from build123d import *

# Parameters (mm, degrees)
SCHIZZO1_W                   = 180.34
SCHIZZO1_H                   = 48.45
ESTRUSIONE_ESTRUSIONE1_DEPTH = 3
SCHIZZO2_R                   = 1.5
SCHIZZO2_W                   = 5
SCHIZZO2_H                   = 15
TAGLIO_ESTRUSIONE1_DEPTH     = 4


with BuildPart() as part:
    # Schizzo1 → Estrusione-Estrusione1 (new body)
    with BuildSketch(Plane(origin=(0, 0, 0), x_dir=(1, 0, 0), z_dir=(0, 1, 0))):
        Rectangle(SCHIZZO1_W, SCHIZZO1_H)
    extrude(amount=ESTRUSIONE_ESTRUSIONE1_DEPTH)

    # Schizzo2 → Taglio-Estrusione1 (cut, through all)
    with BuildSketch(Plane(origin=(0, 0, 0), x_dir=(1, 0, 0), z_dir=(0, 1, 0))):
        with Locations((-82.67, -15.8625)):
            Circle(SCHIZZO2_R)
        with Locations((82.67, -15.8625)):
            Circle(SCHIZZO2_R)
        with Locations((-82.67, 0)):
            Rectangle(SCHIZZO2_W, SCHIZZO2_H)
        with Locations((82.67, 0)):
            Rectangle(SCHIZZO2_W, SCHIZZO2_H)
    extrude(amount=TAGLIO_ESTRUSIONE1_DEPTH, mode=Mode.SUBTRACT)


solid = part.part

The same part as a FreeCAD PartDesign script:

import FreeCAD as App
import Part
import Sketcher

doc = App.newDocument("Part")
body = doc.addObject("PartDesign::Body", "Body")

sketch1 = doc.addObject("Sketcher::SketchObject", "Sketch")
body.addObject(sketch1)
sketch1.AttachmentSupport = (doc.XZ_Plane, [""])
sketch1.MapMode = "FlatFace"
sketch1.addGeometry([
    Part.LineSegment(App.Vector(-90, -24, 0), App.Vector(-90, 24, 0)),
    Part.LineSegment(App.Vector(-90, 24, 0), App.Vector(90, 24, 0)),
    Part.LineSegment(App.Vector(90, 24, 0), App.Vector(90, -24, 0)),
    Part.LineSegment(App.Vector(90, -24, 0), App.Vector(-90, -24, 0)),
], False)
sketch1.addConstraint([
    Sketcher.Constraint("Coincident", 0, 2, 1, 1),
    Sketcher.Constraint("Coincident", 1, 2, 2, 1),
    Sketcher.Constraint("Coincident", 2, 2, 3, 1),
    Sketcher.Constraint("Coincident", 3, 2, 0, 1),
    Sketcher.Constraint("Vertical", 0),
    Sketcher.Constraint("Horizontal", 1),
    Sketcher.Constraint("Vertical", 2),
    Sketcher.Constraint("Horizontal", 3),
    Sketcher.Constraint("Symmetric", 0, 2, 2, 2, -1, 1),
    Sketcher.Constraint("DistanceX", 1, 1, 1, 2, 180.34),
    Sketcher.Constraint("DistanceY", 0, 1, 0, 2, 48.45),
])
pad1 = doc.addObject("PartDesign::Pad", "Pad")
body.addObject(pad1)
pad1.Profile = sketch1
pad1.Length = 3
pad1.Reversed = True

sketch2 = doc.addObject("Sketcher::SketchObject", "Sketch001")
body.addObject(sketch2)
sketch2.AttachmentSupport = (doc.XZ_Plane, [""])
sketch2.MapMode = "FlatFace"
sketch2.addGeometry([
    Part.Circle(App.Vector(-82.7, 15.9, 0), App.Vector(0, 0, 1), 1.5),
    Part.Circle(App.Vector(82.7, 15.9, 0), App.Vector(0, 0, 1), 1.5),
    Part.LineSegment(App.Vector(-85.2, -7.5, 0), App.Vector(-85.2, 7.5, 0)),
    Part.LineSegment(App.Vector(-85.2, 7.5, 0), App.Vector(-80.2, 7.5, 0)),
    Part.LineSegment(App.Vector(-80.2, 7.5, 0), App.Vector(-80.2, -7.5, 0)),
    Part.LineSegment(App.Vector(-80.2, -7.5, 0), App.Vector(-85.2, -7.5, 0)),
    Part.LineSegment(App.Vector(80.2, -7.5, 0), App.Vector(80.2, 7.5, 0)),
    Part.LineSegment(App.Vector(80.2, 7.5, 0), App.Vector(85.2, 7.5, 0)),
    Part.LineSegment(App.Vector(85.2, 7.5, 0), App.Vector(85.2, -7.5, 0)),
    Part.LineSegment(App.Vector(85.2, -7.5, 0), App.Vector(80.2, -7.5, 0)),
], False)
sketch2.addConstraint([
    Sketcher.Constraint("Coincident", 2, 2, 3, 1),
    Sketcher.Constraint("Coincident", 3, 2, 4, 1),
    Sketcher.Constraint("Coincident", 4, 2, 5, 1),
    Sketcher.Constraint("Coincident", 5, 2, 2, 1),
    Sketcher.Constraint("Coincident", 6, 2, 7, 1),
    Sketcher.Constraint("Coincident", 7, 2, 8, 1),
    Sketcher.Constraint("Coincident", 8, 2, 9, 1),
    Sketcher.Constraint("Coincident", 9, 2, 6, 1),
    Sketcher.Constraint("Vertical", 2),
    Sketcher.Constraint("Horizontal", 3),
    Sketcher.Constraint("Vertical", 4),
    Sketcher.Constraint("Horizontal", 5),
    Sketcher.Constraint("Vertical", 6),
    Sketcher.Constraint("Horizontal", 7),
    Sketcher.Constraint("Vertical", 8),
    Sketcher.Constraint("Horizontal", 9),
    Sketcher.Constraint("Equal", 0, 1),
    Sketcher.Constraint("Symmetric", 4, 2, 6, 2, -1, 1),
    Sketcher.Constraint("Symmetric", 2, 2, 8, 2, -1, 1),
    Sketcher.Constraint("Symmetric", 0, 3, 1, 3, -2),
    Sketcher.Constraint("Horizontal", 3, 2, 6, 2),
    Sketcher.Constraint("Diameter", 0, 3.0),
    Sketcher.Constraint("DistanceX", 3, 1, 3, 2, 5.0),
    Sketcher.Constraint("DistanceY", 2, 1, 2, 2, 15.0),
    Sketcher.Constraint("DistanceX", 2, 2, 0, 3, 2.5),
    Sketcher.Constraint("DistanceX", 0, 3, -1, 1, 82.67),
    Sketcher.Constraint("DistanceY", -1, 1, 0, 3, 15.8625),
])
pocket1 = doc.addObject("PartDesign::Pocket", "Pocket")
body.addObject(pocket1)
pocket1.Profile = sketch2
pocket1.Type = "ThroughAll"

doc.recompute()
